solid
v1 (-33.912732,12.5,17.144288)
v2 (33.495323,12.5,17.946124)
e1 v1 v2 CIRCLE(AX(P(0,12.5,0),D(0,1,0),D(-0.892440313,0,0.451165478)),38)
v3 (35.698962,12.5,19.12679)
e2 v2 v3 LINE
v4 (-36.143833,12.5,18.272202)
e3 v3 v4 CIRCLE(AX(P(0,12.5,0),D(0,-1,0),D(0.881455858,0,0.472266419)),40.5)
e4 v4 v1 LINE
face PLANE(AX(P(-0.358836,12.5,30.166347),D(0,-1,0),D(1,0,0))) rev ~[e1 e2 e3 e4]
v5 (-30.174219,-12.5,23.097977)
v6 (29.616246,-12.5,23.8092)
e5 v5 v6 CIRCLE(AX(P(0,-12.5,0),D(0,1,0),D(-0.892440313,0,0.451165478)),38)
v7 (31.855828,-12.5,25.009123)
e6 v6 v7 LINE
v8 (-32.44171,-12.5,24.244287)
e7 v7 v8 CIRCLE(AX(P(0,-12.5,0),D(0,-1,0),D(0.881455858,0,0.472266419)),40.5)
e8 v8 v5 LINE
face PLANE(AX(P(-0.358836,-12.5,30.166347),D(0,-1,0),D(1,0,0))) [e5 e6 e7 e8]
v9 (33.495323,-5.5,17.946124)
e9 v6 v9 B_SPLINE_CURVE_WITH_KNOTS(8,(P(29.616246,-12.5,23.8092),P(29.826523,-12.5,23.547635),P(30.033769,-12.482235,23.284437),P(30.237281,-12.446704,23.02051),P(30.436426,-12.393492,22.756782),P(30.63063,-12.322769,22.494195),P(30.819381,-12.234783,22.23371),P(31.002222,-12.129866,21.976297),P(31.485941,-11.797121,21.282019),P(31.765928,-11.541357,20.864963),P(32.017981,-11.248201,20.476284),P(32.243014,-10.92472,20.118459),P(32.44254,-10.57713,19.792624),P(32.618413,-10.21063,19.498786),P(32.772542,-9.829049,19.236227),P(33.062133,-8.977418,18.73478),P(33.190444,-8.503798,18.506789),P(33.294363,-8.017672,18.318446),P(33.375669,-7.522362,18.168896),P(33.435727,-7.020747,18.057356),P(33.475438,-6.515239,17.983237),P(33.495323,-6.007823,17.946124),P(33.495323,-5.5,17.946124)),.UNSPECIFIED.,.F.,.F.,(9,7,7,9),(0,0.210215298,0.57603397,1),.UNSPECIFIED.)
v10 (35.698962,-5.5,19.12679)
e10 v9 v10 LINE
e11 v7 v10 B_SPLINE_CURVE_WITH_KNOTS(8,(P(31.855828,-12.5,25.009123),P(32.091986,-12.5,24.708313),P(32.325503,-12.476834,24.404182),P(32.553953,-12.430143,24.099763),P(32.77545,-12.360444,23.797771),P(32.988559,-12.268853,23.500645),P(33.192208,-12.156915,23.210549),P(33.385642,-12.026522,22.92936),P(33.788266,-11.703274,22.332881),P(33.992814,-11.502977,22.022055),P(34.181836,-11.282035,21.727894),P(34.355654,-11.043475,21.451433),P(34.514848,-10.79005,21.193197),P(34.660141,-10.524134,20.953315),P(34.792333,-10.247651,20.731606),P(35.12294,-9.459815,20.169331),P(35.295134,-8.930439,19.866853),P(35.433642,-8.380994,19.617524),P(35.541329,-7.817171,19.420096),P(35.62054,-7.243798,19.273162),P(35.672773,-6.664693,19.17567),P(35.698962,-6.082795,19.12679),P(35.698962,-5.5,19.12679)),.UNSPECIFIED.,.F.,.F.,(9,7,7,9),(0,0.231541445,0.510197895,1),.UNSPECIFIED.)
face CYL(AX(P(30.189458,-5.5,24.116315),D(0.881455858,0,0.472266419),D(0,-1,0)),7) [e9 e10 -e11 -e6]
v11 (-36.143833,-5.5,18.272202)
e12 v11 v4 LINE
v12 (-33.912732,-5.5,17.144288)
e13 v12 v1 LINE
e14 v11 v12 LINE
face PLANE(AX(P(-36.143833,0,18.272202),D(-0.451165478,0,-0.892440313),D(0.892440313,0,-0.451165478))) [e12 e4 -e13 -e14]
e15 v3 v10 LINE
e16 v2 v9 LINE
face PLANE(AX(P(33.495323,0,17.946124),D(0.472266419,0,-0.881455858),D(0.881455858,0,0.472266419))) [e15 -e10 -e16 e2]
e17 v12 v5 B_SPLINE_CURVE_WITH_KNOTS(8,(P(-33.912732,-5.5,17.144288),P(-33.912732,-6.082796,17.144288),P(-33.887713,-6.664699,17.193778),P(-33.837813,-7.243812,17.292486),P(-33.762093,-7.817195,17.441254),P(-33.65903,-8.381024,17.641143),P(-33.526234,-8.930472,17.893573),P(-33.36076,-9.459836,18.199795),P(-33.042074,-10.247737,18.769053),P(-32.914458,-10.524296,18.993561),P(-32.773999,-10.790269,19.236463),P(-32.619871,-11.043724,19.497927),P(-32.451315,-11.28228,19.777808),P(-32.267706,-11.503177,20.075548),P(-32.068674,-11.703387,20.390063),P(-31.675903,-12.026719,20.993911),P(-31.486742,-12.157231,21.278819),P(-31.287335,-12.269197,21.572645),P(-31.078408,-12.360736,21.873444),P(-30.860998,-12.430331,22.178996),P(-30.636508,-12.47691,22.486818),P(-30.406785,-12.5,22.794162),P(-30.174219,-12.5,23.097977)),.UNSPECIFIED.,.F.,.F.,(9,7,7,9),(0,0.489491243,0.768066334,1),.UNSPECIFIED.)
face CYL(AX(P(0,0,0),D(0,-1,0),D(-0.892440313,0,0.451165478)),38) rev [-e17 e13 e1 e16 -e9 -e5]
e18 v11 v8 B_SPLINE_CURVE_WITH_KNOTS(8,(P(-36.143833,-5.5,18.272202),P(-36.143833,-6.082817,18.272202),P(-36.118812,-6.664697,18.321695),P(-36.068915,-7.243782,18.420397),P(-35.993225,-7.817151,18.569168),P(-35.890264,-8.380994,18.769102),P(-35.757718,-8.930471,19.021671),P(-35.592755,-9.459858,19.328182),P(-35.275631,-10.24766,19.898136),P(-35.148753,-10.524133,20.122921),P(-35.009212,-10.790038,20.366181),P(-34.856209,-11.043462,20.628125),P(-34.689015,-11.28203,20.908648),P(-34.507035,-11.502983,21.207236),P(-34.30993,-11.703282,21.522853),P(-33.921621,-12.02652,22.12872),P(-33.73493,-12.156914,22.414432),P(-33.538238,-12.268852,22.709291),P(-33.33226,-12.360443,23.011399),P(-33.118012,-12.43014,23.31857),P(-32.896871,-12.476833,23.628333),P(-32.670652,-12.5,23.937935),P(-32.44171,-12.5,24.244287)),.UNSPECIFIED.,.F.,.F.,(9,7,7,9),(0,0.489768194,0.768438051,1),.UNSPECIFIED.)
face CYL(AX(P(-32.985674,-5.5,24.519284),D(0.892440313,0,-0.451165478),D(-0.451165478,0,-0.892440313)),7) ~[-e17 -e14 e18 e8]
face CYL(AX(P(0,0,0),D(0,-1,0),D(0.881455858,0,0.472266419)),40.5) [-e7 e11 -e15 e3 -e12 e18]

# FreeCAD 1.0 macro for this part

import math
import FreeCAD as App
import Part
import Sketcher
Q = App.Units.Quantity


def edges_at(feature, points):
    """Names of the edges that pass closest to the given points."""
    edges = feature.Shape.Edges
    near = lambda p: min(range(len(edges)), key=lambda i: edges[i].distToShape(Part.Vertex(*p))[0])
    return sorted({f"Edge{near(p) + 1}" for p in points})

doc = App.newDocument("Part")
body = doc.addObject("PartDesign::Body", "Body")

sketch1 = doc.addObject("Sketcher::SketchObject", "Sketch")
body.addObject(sketch1)
sketch1.AttachmentSupport = (doc.XZ_Plane, [""])
sketch1.MapMode = "FlatFace"
sketch1.addGeometry(Part.ArcOfCircle(Part.Circle(App.Vector(0, 0, 0), App.Vector(0, 0, 1), 38), math.radians(28), math.radians(153)), False)
sketch1.addGeometry(Part.LineSegment(App.Vector(33.5, 17.9, 0), App.Vector(35.7, 19.1, 0)), False)
sketch1.addGeometry(Part.ArcOfCircle(Part.Circle(App.Vector(0, 0, 0), App.Vector(0, 0, 1), 40.5), math.radians(28), math.radians(153)), False)
sketch1.addGeometry(Part.LineSegment(App.Vector(-36.1, 18.3, 0), App.Vector(-33.9, 17.1, 0)), False)
sketch1.addConstraint(Sketcher.Constraint("Coincident", 0, 1, 1, 1))
sketch1.addConstraint(Sketcher.Constraint("Coincident", 1, 2, 2, 1))
sketch1.addConstraint(Sketcher.Constraint("Coincident", 2, 2, 3, 1))
sketch1.addConstraint(Sketcher.Constraint("Coincident", 3, 2, 0, 2))
sketch1.addConstraint(Sketcher.Constraint("Coincident", 0, 3, -1, 1))
sketch1.addConstraint(Sketcher.Constraint("Coincident", 2, 3, -1, 1))
sketch1.addConstraint(Sketcher.Constraint("Radius", 0, Q("38 mm")))
sketch1.addConstraint(Sketcher.Constraint("Radius", 2, Q("40.5 mm")))
sketch1.addConstraint(Sketcher.Constraint("DistanceY", -1, 1, 2, 2, Q("18.272202 mm")))
sketch1.addConstraint(Sketcher.Constraint("DistanceX", 2, 2, 3, 2, Q("2.231101 mm")))
sketch1.addConstraint(Sketcher.Constraint("DistanceY", 3, 2, 1, 2, Q("1.982502 mm")))
sketch1.addConstraint(Sketcher.Constraint("DistanceX", 0, 1, 1, 2, Q("2.20364 mm")))
pad1 = doc.addObject("PartDesign::Pad", "Pad")
body.addObject(pad1)
pad1.Profile = sketch1
pad1.Length = 25
pad1.Midplane = True
doc.recompute()

fillet = doc.addObject("PartDesign::Fillet", "Fillet")
body.addObject(fillet)
fillet.Base = (pad1, edges_at(pad1, [(34.597, -12.5, 18.536), (-35.028, -12.5, 17.708)]))
fillet.Radius = 7

doc.recompute()
